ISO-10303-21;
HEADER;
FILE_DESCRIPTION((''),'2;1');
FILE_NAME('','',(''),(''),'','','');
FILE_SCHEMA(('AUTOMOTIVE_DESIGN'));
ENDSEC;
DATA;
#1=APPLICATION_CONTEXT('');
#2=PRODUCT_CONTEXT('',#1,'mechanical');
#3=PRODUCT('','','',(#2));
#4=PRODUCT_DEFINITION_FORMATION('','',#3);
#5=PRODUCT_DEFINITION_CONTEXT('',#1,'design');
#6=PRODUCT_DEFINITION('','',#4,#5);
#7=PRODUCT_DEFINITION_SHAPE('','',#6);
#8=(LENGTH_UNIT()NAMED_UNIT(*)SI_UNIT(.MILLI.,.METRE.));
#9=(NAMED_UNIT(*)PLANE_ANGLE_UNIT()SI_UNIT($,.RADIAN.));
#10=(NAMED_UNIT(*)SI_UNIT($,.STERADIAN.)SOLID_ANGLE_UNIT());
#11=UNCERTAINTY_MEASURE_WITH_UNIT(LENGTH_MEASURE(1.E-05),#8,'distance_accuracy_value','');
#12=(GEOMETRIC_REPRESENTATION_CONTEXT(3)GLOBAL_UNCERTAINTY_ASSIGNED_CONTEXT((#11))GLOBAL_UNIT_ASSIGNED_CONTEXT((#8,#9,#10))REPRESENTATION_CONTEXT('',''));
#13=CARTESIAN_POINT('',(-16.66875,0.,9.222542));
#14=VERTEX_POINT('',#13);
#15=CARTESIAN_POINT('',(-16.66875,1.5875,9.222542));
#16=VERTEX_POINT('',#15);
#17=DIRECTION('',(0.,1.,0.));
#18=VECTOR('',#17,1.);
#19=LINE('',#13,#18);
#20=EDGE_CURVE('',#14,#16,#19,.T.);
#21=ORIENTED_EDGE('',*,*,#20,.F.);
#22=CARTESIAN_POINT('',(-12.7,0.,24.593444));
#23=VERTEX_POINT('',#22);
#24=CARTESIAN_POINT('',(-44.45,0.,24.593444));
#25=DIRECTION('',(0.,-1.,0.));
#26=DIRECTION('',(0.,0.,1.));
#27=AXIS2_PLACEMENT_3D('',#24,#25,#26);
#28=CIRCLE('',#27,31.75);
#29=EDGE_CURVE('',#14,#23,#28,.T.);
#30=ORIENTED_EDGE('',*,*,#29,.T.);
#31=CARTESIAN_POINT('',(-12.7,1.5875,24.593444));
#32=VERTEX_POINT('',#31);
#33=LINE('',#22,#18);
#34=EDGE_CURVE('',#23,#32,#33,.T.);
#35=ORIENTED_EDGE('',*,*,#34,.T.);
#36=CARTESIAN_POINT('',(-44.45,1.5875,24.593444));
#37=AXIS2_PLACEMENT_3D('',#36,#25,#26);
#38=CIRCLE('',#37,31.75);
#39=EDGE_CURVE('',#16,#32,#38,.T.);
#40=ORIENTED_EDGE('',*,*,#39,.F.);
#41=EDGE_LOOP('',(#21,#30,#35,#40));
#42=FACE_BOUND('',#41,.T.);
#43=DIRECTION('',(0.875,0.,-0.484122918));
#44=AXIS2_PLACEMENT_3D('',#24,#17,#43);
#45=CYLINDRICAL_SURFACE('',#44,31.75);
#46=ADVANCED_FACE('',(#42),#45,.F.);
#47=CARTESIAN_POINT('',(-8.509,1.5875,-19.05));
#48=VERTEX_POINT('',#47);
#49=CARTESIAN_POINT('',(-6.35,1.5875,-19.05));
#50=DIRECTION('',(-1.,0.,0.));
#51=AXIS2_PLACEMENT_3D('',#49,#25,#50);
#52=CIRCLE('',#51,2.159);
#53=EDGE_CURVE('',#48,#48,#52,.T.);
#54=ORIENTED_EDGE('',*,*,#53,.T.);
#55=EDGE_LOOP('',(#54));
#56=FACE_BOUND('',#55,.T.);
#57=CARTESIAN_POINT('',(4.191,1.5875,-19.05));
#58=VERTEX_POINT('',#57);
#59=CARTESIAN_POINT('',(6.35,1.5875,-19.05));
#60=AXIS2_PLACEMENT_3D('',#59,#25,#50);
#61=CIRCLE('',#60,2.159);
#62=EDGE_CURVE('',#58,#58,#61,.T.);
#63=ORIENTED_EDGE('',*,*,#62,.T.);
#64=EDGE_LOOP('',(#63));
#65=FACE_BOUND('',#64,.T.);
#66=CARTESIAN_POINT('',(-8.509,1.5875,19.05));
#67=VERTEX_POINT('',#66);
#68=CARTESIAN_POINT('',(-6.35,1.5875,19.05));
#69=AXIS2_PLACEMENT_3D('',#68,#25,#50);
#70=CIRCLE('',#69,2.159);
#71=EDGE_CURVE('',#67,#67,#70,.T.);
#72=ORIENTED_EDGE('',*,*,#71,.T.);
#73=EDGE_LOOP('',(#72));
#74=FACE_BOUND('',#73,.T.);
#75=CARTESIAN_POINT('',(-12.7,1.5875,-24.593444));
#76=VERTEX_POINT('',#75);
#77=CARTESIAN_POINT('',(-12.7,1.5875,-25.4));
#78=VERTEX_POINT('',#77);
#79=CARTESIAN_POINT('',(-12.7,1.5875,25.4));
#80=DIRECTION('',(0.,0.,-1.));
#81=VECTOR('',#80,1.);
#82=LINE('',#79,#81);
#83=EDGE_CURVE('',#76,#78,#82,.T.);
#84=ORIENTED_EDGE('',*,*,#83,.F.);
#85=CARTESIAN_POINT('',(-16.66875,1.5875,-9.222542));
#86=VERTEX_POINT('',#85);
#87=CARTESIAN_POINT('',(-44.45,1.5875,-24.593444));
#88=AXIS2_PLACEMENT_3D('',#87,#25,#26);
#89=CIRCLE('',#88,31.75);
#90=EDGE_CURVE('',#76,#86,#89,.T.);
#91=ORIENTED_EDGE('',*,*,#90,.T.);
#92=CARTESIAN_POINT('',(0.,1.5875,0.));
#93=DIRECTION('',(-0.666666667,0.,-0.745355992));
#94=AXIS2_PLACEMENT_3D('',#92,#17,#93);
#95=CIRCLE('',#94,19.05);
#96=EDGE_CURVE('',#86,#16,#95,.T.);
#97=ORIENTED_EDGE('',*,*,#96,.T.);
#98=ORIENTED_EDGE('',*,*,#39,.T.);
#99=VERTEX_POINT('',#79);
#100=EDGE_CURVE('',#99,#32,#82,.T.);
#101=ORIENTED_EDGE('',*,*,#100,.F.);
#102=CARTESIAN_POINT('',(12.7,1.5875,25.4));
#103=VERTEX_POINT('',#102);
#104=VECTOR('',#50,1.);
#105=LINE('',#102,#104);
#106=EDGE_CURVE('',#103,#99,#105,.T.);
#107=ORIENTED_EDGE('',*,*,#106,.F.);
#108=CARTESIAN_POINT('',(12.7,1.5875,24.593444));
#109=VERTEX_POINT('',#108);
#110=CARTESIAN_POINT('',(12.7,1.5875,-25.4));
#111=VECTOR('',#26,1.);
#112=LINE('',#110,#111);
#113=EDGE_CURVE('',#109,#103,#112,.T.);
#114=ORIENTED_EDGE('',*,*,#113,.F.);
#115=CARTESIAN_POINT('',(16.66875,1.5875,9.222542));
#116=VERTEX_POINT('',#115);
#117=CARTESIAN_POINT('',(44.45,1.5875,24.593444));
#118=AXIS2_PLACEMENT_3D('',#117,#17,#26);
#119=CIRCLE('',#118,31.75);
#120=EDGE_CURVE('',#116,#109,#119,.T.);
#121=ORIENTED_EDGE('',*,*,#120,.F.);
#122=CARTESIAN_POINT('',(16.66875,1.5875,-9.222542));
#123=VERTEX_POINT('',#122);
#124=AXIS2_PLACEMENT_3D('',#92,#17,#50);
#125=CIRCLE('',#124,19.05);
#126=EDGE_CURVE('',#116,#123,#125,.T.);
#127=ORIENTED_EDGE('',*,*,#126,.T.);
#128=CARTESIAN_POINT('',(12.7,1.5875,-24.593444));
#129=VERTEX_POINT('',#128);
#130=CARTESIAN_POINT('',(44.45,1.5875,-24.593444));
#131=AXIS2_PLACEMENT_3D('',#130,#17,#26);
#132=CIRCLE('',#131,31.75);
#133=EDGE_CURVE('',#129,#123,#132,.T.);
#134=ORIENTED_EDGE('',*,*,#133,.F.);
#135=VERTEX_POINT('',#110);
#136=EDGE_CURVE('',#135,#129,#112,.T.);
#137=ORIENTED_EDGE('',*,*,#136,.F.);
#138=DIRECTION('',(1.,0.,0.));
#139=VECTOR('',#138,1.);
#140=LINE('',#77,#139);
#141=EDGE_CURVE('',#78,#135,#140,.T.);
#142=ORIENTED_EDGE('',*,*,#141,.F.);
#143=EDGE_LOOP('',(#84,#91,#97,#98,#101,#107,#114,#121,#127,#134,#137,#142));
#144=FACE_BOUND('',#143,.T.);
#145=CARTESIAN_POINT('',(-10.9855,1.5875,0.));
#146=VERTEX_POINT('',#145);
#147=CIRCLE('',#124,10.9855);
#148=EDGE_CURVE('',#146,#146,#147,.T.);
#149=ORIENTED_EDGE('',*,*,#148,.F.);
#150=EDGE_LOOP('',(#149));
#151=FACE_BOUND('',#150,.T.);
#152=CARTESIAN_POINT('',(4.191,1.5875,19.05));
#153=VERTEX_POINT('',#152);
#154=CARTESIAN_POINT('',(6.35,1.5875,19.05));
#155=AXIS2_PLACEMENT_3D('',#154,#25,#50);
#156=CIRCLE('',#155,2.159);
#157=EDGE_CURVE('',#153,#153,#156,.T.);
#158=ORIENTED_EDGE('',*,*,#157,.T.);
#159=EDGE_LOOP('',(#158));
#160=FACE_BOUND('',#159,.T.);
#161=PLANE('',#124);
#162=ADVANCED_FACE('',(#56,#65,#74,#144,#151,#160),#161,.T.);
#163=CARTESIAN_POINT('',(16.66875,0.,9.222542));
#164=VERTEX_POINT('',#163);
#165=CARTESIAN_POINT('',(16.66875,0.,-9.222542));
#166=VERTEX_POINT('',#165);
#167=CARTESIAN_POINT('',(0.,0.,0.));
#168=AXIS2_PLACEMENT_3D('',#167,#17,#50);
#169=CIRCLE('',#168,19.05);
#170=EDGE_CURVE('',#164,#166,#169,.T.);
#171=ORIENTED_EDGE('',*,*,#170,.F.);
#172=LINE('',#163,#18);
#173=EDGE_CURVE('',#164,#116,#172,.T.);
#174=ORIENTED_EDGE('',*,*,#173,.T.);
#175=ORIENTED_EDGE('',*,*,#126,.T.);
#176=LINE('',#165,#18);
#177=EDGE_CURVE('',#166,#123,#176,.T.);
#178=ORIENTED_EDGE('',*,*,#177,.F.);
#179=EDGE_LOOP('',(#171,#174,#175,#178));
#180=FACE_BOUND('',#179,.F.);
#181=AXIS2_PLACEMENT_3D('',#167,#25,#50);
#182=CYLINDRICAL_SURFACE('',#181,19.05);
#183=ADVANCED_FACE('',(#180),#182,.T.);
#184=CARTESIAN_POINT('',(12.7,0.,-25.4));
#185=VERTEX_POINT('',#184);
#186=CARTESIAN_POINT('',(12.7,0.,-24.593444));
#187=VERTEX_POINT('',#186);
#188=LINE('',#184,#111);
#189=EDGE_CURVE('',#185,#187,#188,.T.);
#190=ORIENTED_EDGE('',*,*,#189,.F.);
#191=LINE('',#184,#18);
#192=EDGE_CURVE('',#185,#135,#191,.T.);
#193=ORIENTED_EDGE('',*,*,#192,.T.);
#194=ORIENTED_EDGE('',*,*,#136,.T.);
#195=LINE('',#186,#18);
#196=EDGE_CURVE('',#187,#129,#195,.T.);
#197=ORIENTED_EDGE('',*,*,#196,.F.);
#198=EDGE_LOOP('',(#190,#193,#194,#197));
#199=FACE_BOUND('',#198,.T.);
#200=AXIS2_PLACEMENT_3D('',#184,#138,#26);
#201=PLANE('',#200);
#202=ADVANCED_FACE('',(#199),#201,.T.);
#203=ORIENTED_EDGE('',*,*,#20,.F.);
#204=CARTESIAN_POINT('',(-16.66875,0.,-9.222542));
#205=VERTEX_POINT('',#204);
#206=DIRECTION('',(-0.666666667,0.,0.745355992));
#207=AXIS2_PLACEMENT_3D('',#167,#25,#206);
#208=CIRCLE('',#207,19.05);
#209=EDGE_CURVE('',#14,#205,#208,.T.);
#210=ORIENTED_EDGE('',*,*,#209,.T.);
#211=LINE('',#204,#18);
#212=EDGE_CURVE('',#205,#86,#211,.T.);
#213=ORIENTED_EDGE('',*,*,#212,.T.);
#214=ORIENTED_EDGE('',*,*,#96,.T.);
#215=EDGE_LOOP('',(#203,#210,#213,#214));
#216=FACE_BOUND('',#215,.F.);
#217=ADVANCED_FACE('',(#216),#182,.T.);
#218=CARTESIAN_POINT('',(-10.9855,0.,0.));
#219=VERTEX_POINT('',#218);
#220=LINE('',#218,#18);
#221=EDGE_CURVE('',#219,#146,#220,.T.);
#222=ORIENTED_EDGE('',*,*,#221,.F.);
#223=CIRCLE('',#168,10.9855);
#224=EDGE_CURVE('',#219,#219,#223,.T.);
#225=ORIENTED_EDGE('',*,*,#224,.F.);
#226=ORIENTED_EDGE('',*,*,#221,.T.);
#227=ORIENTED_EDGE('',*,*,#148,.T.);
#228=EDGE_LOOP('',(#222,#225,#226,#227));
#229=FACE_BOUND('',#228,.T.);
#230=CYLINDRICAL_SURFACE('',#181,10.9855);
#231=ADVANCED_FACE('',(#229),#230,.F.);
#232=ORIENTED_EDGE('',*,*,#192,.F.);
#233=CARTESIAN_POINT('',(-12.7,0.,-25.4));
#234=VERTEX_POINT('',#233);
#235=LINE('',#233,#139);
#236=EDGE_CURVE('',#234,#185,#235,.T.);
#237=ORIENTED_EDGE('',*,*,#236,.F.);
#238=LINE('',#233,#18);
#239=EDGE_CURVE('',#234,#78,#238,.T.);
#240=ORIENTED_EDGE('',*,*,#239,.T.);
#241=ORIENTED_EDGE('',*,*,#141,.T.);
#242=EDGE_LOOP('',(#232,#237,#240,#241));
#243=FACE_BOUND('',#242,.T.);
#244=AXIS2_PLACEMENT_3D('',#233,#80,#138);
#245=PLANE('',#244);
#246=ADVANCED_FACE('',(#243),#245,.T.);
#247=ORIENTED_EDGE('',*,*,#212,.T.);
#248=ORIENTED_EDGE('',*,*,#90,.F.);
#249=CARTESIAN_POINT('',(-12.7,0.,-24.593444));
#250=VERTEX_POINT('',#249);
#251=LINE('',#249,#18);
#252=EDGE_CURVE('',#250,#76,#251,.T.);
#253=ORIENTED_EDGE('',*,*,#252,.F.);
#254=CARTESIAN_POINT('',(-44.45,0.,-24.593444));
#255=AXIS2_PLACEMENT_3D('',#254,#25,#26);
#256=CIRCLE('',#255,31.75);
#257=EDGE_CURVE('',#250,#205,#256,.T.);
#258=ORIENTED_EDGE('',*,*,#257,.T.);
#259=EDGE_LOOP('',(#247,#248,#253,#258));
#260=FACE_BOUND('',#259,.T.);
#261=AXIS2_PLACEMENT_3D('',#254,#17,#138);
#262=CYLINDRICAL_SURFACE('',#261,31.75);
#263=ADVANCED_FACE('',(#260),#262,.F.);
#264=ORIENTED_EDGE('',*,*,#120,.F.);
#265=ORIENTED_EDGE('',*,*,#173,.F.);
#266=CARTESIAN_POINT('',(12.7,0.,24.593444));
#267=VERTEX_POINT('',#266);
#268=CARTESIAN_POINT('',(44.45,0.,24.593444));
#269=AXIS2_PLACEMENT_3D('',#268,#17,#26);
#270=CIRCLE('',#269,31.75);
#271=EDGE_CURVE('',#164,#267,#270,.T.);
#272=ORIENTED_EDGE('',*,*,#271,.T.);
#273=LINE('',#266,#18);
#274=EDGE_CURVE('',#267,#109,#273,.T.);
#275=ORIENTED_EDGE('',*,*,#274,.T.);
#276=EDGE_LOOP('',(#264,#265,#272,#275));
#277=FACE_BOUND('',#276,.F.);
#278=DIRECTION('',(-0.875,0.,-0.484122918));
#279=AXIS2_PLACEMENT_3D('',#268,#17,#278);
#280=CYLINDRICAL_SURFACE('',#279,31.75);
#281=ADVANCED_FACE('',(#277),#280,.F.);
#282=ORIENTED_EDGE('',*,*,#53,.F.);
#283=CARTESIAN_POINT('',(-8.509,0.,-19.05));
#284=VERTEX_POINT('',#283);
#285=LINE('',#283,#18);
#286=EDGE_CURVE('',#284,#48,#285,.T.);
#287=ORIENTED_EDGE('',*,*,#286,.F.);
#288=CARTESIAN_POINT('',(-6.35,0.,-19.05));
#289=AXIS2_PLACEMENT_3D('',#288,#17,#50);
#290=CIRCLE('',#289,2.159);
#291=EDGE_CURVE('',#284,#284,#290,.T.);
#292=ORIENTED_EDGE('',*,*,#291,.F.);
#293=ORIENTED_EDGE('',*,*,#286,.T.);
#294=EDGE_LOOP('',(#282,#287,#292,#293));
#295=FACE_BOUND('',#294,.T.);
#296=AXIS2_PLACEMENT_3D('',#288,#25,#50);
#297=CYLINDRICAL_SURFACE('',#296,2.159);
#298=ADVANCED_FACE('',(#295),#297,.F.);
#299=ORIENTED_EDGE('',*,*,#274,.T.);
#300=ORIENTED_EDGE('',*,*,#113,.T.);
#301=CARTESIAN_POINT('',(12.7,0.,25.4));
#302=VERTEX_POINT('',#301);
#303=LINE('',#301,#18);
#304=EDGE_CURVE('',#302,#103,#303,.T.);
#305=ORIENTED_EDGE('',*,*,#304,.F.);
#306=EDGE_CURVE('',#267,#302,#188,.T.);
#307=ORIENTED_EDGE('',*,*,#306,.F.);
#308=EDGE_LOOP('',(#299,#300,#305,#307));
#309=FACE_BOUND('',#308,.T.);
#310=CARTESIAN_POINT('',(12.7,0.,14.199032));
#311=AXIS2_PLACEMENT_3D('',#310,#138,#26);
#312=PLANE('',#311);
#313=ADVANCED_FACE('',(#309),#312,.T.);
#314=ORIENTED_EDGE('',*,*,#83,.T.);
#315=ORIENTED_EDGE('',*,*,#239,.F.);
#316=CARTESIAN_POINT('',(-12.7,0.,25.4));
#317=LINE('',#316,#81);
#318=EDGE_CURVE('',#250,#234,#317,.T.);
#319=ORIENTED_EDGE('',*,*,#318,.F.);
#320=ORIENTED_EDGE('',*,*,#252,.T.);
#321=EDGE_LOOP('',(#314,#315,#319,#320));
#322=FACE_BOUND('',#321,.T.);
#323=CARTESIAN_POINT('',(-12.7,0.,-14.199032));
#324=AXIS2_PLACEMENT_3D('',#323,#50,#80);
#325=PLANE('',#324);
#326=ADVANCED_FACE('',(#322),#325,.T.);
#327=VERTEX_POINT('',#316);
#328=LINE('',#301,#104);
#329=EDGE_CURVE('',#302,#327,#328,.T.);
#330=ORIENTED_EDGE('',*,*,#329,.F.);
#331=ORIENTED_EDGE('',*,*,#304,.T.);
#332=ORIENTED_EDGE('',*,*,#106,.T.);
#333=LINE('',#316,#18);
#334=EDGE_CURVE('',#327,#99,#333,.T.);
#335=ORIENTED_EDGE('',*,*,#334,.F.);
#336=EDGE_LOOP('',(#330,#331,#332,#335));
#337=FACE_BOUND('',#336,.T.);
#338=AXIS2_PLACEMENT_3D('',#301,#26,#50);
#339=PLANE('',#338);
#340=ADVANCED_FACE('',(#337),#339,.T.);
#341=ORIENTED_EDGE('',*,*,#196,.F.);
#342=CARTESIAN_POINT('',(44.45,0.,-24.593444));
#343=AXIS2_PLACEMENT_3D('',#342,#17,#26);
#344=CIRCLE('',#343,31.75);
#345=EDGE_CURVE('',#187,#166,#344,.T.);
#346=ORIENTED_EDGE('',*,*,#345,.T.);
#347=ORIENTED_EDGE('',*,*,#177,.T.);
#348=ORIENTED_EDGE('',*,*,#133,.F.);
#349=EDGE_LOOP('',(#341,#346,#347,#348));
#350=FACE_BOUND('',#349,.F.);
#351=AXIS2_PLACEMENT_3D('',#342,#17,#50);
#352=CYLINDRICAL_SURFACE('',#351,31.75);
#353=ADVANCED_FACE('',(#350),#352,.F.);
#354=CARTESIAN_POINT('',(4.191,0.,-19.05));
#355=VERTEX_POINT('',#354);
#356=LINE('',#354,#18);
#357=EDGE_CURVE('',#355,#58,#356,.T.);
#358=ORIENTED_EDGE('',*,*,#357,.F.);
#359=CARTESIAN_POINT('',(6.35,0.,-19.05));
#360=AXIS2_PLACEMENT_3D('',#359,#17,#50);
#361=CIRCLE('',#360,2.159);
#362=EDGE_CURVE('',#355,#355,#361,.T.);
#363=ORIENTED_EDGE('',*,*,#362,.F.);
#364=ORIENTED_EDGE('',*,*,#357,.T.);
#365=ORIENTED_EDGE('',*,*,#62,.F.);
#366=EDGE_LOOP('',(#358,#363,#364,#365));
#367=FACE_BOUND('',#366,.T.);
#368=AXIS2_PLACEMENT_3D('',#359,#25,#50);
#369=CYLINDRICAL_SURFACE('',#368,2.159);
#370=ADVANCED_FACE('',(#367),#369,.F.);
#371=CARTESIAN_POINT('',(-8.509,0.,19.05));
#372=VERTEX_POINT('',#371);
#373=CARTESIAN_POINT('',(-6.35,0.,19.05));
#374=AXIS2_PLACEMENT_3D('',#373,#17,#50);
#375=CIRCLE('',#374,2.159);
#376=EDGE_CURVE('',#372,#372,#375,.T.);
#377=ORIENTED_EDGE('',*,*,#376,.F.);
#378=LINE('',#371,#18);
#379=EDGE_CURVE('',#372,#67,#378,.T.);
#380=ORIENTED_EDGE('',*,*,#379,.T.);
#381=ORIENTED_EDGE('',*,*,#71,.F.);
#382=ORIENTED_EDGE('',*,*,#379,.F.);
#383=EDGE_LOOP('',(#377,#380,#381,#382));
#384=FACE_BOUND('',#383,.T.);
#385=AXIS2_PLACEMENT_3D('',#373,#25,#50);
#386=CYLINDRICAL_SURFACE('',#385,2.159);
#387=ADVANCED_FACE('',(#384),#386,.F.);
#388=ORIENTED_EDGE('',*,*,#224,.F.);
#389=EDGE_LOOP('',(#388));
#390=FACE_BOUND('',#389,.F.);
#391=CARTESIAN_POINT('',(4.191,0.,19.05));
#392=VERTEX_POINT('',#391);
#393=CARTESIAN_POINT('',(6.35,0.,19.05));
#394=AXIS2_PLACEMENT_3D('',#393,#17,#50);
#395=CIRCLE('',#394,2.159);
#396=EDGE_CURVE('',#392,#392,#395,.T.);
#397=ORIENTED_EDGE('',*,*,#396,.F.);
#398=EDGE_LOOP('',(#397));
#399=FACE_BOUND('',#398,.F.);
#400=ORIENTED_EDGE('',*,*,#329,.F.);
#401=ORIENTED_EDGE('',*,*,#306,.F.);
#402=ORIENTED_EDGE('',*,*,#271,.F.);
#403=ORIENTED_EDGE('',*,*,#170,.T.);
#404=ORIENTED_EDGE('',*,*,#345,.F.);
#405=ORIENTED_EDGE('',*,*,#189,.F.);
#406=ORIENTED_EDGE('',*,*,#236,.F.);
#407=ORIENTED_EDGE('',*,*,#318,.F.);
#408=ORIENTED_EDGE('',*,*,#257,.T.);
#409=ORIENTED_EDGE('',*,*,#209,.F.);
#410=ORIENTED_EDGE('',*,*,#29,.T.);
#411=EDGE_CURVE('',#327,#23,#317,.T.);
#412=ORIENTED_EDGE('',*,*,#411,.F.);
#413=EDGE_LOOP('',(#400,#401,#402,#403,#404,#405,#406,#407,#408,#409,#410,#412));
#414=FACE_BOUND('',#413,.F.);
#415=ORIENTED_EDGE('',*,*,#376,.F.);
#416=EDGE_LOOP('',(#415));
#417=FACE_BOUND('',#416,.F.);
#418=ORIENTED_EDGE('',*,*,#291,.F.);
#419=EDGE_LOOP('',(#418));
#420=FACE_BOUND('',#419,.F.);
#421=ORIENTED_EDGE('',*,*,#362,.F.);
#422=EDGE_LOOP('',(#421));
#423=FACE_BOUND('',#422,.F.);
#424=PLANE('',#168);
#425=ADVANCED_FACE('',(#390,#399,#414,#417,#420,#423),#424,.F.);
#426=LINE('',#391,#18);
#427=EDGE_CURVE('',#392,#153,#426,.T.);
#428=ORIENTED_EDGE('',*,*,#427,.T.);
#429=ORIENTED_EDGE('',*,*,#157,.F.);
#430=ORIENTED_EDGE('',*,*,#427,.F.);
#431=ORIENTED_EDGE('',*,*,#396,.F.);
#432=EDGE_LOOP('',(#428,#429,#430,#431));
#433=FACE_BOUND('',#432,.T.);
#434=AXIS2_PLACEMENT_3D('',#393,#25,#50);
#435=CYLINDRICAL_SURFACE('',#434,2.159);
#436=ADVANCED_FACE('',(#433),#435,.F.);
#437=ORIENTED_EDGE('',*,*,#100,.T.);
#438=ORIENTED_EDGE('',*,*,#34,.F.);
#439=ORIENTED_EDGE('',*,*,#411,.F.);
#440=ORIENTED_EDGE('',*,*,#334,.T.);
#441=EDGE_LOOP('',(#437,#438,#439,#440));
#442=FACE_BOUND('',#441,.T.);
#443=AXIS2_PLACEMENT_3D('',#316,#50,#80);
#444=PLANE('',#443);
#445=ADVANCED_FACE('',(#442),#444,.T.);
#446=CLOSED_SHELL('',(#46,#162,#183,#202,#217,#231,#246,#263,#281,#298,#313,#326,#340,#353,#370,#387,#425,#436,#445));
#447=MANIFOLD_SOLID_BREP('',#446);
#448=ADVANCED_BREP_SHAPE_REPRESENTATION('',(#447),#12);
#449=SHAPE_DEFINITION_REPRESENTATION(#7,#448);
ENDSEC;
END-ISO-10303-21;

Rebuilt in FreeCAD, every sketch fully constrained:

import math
import FreeCAD as App
import Part
import Sketcher

V = App.Vector
Q = App.Units.Quantity


def edges_at(feature, points):
    """Names of the edges that pass closest to the given points."""
    edges = feature.Shape.Edges
    near = lambda p: min(range(len(edges)), key=lambda i: edges[i].distToShape(Part.Vertex(*p))[0])
    return sorted({f"Edge{near(p) + 1}" for p in points})

doc = App.newDocument("Part")
body = doc.addObject("PartDesign::Body", "Body")

sketch1 = doc.addObject("Sketcher::SketchObject", "Sketch")
body.addObject(sketch1)
sketch1.AttachmentSupport = (doc.XZ_Plane, [""])
sketch1.MapMode = "FlatFace"
sketch1.addGeometry([
    Part.LineSegment(V(12.7, -25.4, 0), V(-12.7, -25.4, 0)),
    Part.LineSegment(V(-12.7, -25.4, 0), V(-12.7, -14.2, 0)),
    Part.ArcOfCircle(Part.Circle(V(0, 0, 0), V(0, 0, 1), 19.1), math.radians(132), math.radians(228)),
    Part.LineSegment(V(-12.7, 14.2, 0), V(-12.7, 25.4, 0)),
    Part.LineSegment(V(-12.7, 25.4, 0), V(12.7, 25.4, 0)),
    Part.LineSegment(V(12.7, 25.4, 0), V(12.7, 14.2, 0)),
    Part.ArcOfCircle(Part.Circle(V(0, 0, 0), V(0, 0, 1), 19.1), math.radians(-48), math.radians(48)),
    Part.LineSegment(V(12.7, -14.2, 0), V(12.7, -25.4, 0)),
    Part.Circle(V(6.3, -19.1, 0), V(0, 0, 1), 2.2),
    Part.Circle(V(-6.3, -19.1, 0), V(0, 0, 1), 2.2),
    Part.Circle(V(0, 0, 0), V(0, 0, 1), 11),
    Part.Circle(V(6.3, 19.1, 0), V(0, 0, 1), 2.2),
    Part.Circle(V(-6.3, 19.1, 0), V(0, 0, 1), 2.2),
], False)
sketch1.addConstraint([
    Sketcher.Constraint("Coincident", 0, 2, 1, 1),
    Sketcher.Constraint("Coincident", 1, 2, 2, 2),
    Sketcher.Constraint("Coincident", 2, 1, 3, 1),
    Sketcher.Constraint("Coincident", 3, 2, 4, 1),
    Sketcher.Constraint("Coincident", 4, 2, 5, 1),
    Sketcher.Constraint("Coincident", 5, 2, 6, 2),
    Sketcher.Constraint("Coincident", 6, 1, 7, 1),
    Sketcher.Constraint("Coincident", 7, 2, 0, 1),
    Sketcher.Constraint("Horizontal", 0),
    Sketcher.Constraint("Vertical", 1),
    Sketcher.Constraint("Vertical", 3),
    Sketcher.Constraint("Horizontal", 4),
    Sketcher.Constraint("Vertical", 5),
    Sketcher.Constraint("Vertical", 7),
    Sketcher.Constraint("Coincident", 2, 3, -1, 1),
    Sketcher.Constraint("Coincident", 6, 3, -1, 1),
    Sketcher.Constraint("Coincident", 10, 3, -1, 1),
    Sketcher.Constraint("Equal", 2, 6),
    Sketcher.Constraint("Equal", 8, 9),
    Sketcher.Constraint("Equal", 9, 11),
    Sketcher.Constraint("Equal", 11, 12),
    Sketcher.Constraint("Symmetric", 9, 3, 11, 3, -1, 1),
    Sketcher.Constraint("Symmetric", 8, 3, 12, 3, -1, 1),
    Sketcher.Constraint("Symmetric", 0, 2, 4, 2, -1, 1),
    Sketcher.Constraint("Symmetric", 8, 3, 9, 3, -2),
    Sketcher.Constraint("Horizontal", 2, 1, 5, 2),
    Sketcher.Constraint("Horizontal", 1, 2, 6, 1),
    Sketcher.Constraint("Diameter", 8, Q("0.17 in")),
    Sketcher.Constraint("DistanceX", 0, 2, 0, 1, Q("1 in")),
    Sketcher.Constraint("Radius", 2, Q("0.75 in")),
    Sketcher.Constraint("Diameter", 10, Q("0.865 in")),
    Sketcher.Constraint("DistanceY", 0, 2, -1, 1, Q("1 in")),
    Sketcher.Constraint("DistanceX", 9, 3, 8, 3, Q("0.5 in")),
    Sketcher.Constraint("DistanceY", 8, 3, 11, 3, Q("1.5 in")),
])
pad1 = doc.addObject("PartDesign::Pad", "Pad")
body.addObject(pad1)
pad1.Profile = sketch1
pad1.Length = Q("0.0625 in")
pad1.Reversed = True
doc.recompute()

fillet = doc.addObject("PartDesign::Fillet", "Fillet")
body.addObject(fillet)
fillet.Base = (pad1, edges_at(pad1, [
    (12.7, 0.794, 14.199),
    (12.7, 0.794, -14.199),
    (-12.7, 0.794, -14.199),
    (-12.7, 0.794, 14.199),
]))
fillet.Radius = Q("1.25 in")

doc.recompute()
